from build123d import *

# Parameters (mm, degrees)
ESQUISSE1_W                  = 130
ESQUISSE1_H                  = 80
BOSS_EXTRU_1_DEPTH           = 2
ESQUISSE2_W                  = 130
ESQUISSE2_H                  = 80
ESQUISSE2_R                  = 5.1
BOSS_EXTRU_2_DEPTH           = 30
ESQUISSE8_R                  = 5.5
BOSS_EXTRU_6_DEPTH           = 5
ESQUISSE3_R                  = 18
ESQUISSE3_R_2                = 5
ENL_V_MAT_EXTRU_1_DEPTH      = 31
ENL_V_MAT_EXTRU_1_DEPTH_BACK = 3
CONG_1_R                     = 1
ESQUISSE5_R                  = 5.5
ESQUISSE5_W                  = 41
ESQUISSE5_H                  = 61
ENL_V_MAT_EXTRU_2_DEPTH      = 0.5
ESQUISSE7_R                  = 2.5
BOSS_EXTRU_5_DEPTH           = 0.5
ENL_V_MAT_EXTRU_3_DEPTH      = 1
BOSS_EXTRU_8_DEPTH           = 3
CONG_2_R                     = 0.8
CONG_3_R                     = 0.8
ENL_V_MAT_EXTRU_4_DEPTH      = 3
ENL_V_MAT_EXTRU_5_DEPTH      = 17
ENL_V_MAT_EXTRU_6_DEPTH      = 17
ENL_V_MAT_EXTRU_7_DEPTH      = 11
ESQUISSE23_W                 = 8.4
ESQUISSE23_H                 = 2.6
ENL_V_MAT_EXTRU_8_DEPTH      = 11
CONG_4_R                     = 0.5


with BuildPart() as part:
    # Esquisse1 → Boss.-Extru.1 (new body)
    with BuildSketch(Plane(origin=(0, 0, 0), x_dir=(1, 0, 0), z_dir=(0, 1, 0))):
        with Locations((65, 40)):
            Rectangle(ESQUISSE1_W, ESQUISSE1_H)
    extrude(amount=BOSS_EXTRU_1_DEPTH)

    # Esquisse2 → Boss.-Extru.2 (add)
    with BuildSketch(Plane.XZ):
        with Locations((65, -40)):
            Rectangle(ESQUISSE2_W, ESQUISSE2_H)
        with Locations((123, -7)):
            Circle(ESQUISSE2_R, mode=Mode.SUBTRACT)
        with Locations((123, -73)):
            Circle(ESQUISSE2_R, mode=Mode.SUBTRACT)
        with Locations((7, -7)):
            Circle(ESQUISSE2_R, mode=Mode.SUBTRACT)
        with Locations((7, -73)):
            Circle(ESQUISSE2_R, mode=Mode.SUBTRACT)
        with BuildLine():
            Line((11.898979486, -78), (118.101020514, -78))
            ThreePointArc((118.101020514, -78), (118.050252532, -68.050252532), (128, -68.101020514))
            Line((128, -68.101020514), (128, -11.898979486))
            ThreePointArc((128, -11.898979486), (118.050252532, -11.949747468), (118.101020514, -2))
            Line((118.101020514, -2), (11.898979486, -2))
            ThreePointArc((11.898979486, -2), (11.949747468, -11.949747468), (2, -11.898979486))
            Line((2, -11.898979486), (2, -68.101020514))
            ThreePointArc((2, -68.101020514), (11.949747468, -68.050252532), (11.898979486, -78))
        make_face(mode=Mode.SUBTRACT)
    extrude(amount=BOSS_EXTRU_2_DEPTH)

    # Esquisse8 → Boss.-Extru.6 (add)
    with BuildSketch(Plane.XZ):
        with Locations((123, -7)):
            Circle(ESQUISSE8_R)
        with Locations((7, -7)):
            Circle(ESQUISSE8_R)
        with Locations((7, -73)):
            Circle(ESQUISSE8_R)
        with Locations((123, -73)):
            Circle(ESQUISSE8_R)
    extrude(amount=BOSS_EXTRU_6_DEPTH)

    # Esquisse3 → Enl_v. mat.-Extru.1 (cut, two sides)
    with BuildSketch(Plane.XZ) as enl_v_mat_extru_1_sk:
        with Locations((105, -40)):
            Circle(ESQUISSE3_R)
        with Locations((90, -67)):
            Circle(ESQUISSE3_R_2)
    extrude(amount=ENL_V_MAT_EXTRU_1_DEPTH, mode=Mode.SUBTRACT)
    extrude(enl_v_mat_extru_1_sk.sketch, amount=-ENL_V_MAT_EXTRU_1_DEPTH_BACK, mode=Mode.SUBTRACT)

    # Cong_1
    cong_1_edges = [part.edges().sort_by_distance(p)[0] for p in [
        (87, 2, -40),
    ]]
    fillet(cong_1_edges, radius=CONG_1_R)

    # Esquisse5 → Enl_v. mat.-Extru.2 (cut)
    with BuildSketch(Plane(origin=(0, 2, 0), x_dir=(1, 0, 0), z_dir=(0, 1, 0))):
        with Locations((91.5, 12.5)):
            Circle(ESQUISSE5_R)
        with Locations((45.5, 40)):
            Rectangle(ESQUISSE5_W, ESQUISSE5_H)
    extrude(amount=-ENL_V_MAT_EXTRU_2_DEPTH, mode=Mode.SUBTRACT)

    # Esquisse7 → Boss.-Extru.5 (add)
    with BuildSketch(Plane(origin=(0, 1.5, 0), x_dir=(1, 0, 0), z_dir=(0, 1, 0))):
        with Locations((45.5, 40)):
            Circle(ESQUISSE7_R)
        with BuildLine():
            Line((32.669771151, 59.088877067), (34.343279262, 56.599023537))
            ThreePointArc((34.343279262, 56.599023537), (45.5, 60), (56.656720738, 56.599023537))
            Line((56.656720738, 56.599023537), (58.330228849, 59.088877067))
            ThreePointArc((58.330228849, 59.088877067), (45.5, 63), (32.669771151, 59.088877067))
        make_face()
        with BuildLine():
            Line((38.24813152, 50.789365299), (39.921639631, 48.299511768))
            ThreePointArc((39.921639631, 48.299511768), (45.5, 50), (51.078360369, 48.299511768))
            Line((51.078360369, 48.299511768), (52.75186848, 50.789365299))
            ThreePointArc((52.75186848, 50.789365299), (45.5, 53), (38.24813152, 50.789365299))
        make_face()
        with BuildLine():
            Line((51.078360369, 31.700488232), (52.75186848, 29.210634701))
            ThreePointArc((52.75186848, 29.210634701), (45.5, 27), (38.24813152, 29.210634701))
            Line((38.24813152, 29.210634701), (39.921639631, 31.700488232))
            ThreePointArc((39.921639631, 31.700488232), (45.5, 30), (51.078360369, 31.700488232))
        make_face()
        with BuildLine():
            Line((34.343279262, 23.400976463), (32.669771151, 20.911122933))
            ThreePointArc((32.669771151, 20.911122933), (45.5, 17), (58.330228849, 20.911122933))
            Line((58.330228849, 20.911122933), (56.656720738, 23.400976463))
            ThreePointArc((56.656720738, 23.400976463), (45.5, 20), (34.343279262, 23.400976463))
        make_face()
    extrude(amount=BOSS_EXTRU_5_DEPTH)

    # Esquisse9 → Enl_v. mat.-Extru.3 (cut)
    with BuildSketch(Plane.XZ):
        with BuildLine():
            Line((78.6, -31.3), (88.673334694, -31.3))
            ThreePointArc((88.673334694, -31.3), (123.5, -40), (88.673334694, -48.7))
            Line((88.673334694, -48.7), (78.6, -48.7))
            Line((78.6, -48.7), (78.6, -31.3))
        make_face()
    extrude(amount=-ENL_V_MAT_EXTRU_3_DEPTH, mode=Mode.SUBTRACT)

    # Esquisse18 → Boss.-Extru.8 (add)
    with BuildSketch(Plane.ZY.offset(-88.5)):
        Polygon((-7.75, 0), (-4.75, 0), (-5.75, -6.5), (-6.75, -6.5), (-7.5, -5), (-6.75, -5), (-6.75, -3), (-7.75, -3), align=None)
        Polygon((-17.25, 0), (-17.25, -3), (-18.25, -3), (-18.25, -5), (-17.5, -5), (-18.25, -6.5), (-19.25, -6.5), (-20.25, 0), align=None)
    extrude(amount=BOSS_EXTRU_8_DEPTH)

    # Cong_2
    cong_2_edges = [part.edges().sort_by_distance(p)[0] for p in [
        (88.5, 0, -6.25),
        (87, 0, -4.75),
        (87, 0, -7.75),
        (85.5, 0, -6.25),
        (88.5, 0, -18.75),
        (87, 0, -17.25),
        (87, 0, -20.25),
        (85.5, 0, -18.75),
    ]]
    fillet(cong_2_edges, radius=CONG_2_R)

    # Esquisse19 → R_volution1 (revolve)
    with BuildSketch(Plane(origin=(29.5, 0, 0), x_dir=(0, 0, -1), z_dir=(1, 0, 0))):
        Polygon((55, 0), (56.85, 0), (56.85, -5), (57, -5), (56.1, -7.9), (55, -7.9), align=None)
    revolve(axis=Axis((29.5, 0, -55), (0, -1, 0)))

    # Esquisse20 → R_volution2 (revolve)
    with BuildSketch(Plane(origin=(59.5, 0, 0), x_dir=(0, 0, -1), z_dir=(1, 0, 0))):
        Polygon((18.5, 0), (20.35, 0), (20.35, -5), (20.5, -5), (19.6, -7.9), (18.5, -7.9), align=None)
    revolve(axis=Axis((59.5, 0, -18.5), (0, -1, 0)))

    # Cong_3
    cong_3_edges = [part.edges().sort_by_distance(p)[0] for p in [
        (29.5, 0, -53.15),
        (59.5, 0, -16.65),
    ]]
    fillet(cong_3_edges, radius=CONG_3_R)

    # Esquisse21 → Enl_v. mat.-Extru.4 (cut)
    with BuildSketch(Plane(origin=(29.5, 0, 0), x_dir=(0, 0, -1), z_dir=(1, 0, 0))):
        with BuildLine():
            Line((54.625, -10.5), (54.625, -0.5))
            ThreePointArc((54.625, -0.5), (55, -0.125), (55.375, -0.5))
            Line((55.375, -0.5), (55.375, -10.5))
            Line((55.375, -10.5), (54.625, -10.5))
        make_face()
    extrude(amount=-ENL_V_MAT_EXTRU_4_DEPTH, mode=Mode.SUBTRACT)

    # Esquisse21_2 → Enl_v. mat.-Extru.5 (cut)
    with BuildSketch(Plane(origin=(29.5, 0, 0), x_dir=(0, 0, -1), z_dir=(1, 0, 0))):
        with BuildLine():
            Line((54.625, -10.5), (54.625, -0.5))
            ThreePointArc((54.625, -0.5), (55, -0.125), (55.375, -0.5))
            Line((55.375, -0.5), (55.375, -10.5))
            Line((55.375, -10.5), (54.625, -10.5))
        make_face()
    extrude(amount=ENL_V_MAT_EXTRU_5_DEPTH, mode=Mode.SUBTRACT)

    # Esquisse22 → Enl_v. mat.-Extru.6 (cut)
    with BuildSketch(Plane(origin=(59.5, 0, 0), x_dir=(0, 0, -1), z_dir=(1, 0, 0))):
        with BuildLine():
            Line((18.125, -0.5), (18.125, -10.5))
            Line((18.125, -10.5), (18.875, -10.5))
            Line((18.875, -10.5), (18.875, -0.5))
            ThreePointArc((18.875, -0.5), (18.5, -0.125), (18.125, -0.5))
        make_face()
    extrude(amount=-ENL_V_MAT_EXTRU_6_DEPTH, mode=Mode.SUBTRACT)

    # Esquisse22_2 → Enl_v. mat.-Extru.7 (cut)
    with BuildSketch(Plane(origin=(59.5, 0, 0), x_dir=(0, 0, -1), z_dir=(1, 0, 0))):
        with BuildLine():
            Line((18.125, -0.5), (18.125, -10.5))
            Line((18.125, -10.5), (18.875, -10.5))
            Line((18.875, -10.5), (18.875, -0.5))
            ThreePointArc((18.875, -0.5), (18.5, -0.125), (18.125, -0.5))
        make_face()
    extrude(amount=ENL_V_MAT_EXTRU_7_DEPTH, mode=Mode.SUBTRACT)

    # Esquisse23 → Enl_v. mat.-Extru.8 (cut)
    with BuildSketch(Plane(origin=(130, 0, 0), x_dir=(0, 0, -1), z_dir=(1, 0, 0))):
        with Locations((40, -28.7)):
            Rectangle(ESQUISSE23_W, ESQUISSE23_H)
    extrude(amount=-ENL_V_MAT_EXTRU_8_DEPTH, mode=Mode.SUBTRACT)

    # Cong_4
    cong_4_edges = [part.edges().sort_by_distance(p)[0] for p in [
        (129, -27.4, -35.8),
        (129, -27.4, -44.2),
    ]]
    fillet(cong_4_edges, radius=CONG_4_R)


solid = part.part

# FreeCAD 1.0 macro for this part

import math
import FreeCAD as App
import Part
import Sketcher
from FreeCAD import Vector


def edges_at(feature, points):
    """Names of the edges that pass closest to the given points."""
    edges = feature.Shape.Edges
    near = lambda p: min(range(len(edges)), key=lambda i: edges[i].distToShape(Part.Vertex(*p))[0])
    return sorted({f"Edge{near(p) + 1}" for p in points})


def add_polygon(sketch, points):
    """Adds a closed chain of lines whose ends are joined by coincident constraints."""
    first, n = sketch.GeometryCount, len(points)
    for a, b in zip(points, points[1:] + points[:1]):
        sketch.addGeometry(Part.LineSegment(App.Vector(*a, 0), App.Vector(*b, 0)), False)
    for i in range(n):
        sketch.addConstraint(Sketcher.Constraint("Coincident", first + i, 2, first + (i + 1) % n, 1))

doc = App.newDocument("Part")
body = doc.addObject("PartDesign::Body", "Body")

# Sketch on XZ plane
sketch1 = body.newObject("Sketcher::SketchObject", "Sketch")
sketch1.AttachmentSupport = (doc.getObject("XZ_Plane"), [""])
sketch1.MapMode = "FlatFace"
add_polygon(sketch1, [(0, -80), (0, 0), (130, 0), (130, -80)])  # lines 0-3
sketch1.addConstraint([
    Sketcher.Constraint("Vertical", 0),
    Sketcher.Constraint("Horizontal", 1),
    Sketcher.Constraint("Vertical", 2),
    Sketcher.Constraint("Horizontal", 3),
    Sketcher.Constraint("Coincident", 0, 2, -1, 1),
    Sketcher.Constraint("DistanceX", 1, 1, 1, 2, 130.0),
    Sketcher.Constraint("DistanceY", 0, 1, 0, 2, 80.0),
])
pad1 = body.newObject("PartDesign::Pad", "Pad")
pad1.Profile = sketch1
pad1.Length = 2
pad1.Reversed = True

# Sketch on XZ plane
sketch2 = body.newObject("Sketcher::SketchObject", "Sketch001")
sketch2.AttachmentSupport = (doc.getObject("XZ_Plane"), [""])
sketch2.MapMode = "FlatFace"
add_polygon(sketch2, [(0, 0), (0, -80), (130, -80), (130, 0)])  # lines 0-3
sketch2.addGeometry(Part.Circle(Vector(7, -73, 0), Vector(0, 0, 1), 5.1), False)  # 4
sketch2.addGeometry(Part.Circle(Vector(123, -73, 0), Vector(0, 0, 1), 5.1), False)  # 5
sketch2.addGeometry(Part.Circle(Vector(7, -7, 0), Vector(0, 0, 1), 5.1), False)  # 6
sketch2.addGeometry(Part.LineSegment(Vector(118.101021, -78, 0), Vector(11.898979, -78, 0)), False)  # 7
sketch2.addGeometry(Part.ArcOfCircle(Part.Circle(Vector(7, -73, 0), Vector(0, 0, 1), 7), math.radians(-45.584691), math.radians(135.584691)), False)  # 8
sketch2.addGeometry(Part.LineSegment(Vector(2, -68.101021, 0), Vector(2, -11.898979, 0)), False)  # 9
sketch2.addGeometry(Part.ArcOfCircle(Part.Circle(Vector(7, -7, 0), Vector(0, 0, 1), 7), math.radians(-135.584691), math.radians(45.584691)), False)  # 10
sketch2.addGeometry(Part.LineSegment(Vector(11.898979, -2, 0), Vector(118.101021, -2, 0)), False)  # 11
sketch2.addGeometry(Part.ArcOfCircle(Part.Circle(Vector(123, -7, 0), Vector(0, 0, 1), 7), math.radians(134.415309), math.radians(315.584691)), False)  # 12
sketch2.addGeometry(Part.LineSegment(Vector(128, -11.898979, 0), Vector(128, -68.101021, 0)), False)  # 13
sketch2.addGeometry(Part.ArcOfCircle(Part.Circle(Vector(123, -73, 0), Vector(0, 0, 1), 7), math.radians(44.415309), math.radians(225.584691)), False)  # 14
sketch2.addGeometry(Part.Circle(Vector(123, -7, 0), Vector(0, 0, 1), 5.1), False)  # 15
sketch2.addConstraint([
    Sketcher.Constraint("Coincident", 7, 2, 8, 1),
    Sketcher.Constraint("Coincident", 8, 2, 9, 1),
    Sketcher.Constraint("Coincident", 9, 2, 10, 1),
    Sketcher.Constraint("Coincident", 10, 2, 11, 1),
    Sketcher.Constraint("Coincident", 11, 2, 12, 1),
    Sketcher.Constraint("Coincident", 12, 2, 13, 1),
    Sketcher.Constraint("Coincident", 13, 2, 14, 1),
    Sketcher.Constraint("Coincident", 14, 2, 7, 1),
    Sketcher.Constraint("Vertical", 0),
    Sketcher.Constraint("Horizontal", 1),
    Sketcher.Constraint("Vertical", 2),
    Sketcher.Constraint("Horizontal", 3),
    Sketcher.Constraint("Horizontal", 7),
    Sketcher.Constraint("Vertical", 9),
    Sketcher.Constraint("Horizontal", 11),
    Sketcher.Constraint("Vertical", 13),
    Sketcher.Constraint("Coincident", 3, 2, -1, 1),
    Sketcher.Constraint("Coincident", 8, 3, 4, 3),
    Sketcher.Constraint("Coincident", 10, 3, 6, 3),
    Sketcher.Constraint("Coincident", 14, 3, 5, 3),
    Sketcher.Constraint("Coincident", 15, 3, 12, 3),
    Sketcher.Constraint("Equal", 4, 5),
    Sketcher.Constraint("Equal", 5, 6),
    Sketcher.Constraint("Equal", 8, 10),
    Sketcher.Constraint("Equal", 10, 12),
    Sketcher.Constraint("Equal", 12, 14),
    Sketcher.Constraint("Equal", 6, 15),
    Sketcher.Constraint("Horizontal", 4, 3, 5, 3),
    Sketcher.Constraint("Horizontal", 10, 3, 12, 3),
    Sketcher.Constraint("Horizontal", 9, 2, 12, 2),
    Sketcher.Constraint("Horizontal", 8, 2, 13, 2),
    Sketcher.Constraint("Vertical", 4, 3, 6, 3),
    Sketcher.Constraint("Vertical", 7, 2, 10, 2),
    Sketcher.Constraint("Radius", 8, 7.0),
    Sketcher.Constraint("Diameter", 4, 10.2),
    Sketcher.Constraint("DistanceX", 1, 1, 1, 2, 130.0),
    Sketcher.Constraint("DistanceY", 0, 2, 0, 1, 80.0),
    Sketcher.Constraint("DistanceX", -1, 1, 4, 3, 7.0),
    Sketcher.Constraint("DistanceY", 4, 3, -1, 1, 73.0),
    Sketcher.Constraint("DistanceX", -1, 1, 5, 3, 123.0),
    Sketcher.Constraint("DistanceY", 6, 3, -1, 1, 7.0),
    Sketcher.Constraint("DistanceY", 7, 2, -1, 1, 78.0),
    Sketcher.Constraint("DistanceX", -1, 1, 8, 2, 2.0),
])
pad2 = body.newObject("PartDesign::Pad", "Pad001")
pad2.Profile = sketch2
pad2.Length = 30

# Sketch on XZ plane
sketch3 = body.newObject("Sketcher::SketchObject", "Sketch002")
sketch3.AttachmentSupport = (doc.getObject("XZ_Plane"), [""])
sketch3.MapMode = "FlatFace"
sketch3.addGeometry([
    Part.Circle(Vector(123, -7, 0), Vector(0, 0, 1), 5.5),
    Part.Circle(Vector(7, -7, 0), Vector(0, 0, 1), 5.5),
    Part.Circle(Vector(7, -73, 0), Vector(0, 0, 1), 5.5),
    Part.Circle(Vector(123, -73, 0), Vector(0, 0, 1), 5.5),
], False)
sketch3.addConstraint([
    Sketcher.Constraint("Equal", 0, 1),
    Sketcher.Constraint("Equal", 1, 2),
    Sketcher.Constraint("Equal", 2, 3),
    Sketcher.Constraint("Horizontal", 0, 3, 1, 3),
    Sketcher.Constraint("Horizontal", 2, 3, 3, 3),
    Sketcher.Constraint("Vertical", 1, 3, 2, 3),
    Sketcher.Constraint("Vertical", 0, 3, 3, 3),
    Sketcher.Constraint("Diameter", 0, 11.0),
    Sketcher.Constraint("DistanceX", -1, 1, 0, 3, 123.0),
    Sketcher.Constraint("DistanceY", 0, 3, -1, 1, 7.0),
    Sketcher.Constraint("DistanceX", -1, 1, 1, 3, 7.0),
    Sketcher.Constraint("DistanceY", 2, 3, -1, 1, 73.0),
])
pad3 = body.newObject("PartDesign::Pad", "Pad002")
pad3.Profile = sketch3
pad3.Length = 5

# Sketch on XZ plane
sketch4 = body.newObject("Sketcher::SketchObject", "Sketch003")
sketch4.AttachmentSupport = (doc.getObject("XZ_Plane"), [""])
sketch4.MapMode = "FlatFace"
sketch4.addGeometry([
    Part.Circle(Vector(105, -40, 0), Vector(0, 0, 1), 18),
    Part.Circle(Vector(90, -67, 0), Vector(0, 0, 1), 5),
], False)
sketch4.addConstraint([
    Sketcher.Constraint("Diameter", 0, 36.0),
    Sketcher.Constraint("Diameter", 1, 10.0),
    Sketcher.Constraint("DistanceX", -1, 1, 0, 3, 105.0),
    Sketcher.Constraint("DistanceY", 0, 3, -1, 1, 40.0),
    Sketcher.Constraint("DistanceX", -1, 1, 1, 3, 90.0),
    Sketcher.Constraint("DistanceY", 1, 3, -1, 1, 67.0),
])
pocket1 = body.newObject("PartDesign::Pocket", "Pocket")
pocket1.Profile = sketch4
pocket1.Type = "ThroughAll"
pocket1.Midplane = True
doc.recompute()

fillet = body.newObject("PartDesign::Fillet", "Fillet")
fillet.Base = (pocket1, edges_at(pocket1, [(87, 2, -40)]))
fillet.Radius = 1

# Sketch on XZ plane
sketch5 = body.newObject("Sketcher::SketchObject", "Sketch004")
sketch5.AttachmentSupport = (doc.getObject("XZ_Plane"), [""])
sketch5.MapMode = "FlatFace"
sketch5.AttachmentOffset = App.Placement(Vector(0, 0, -2), App.Rotation())
sketch5.addGeometry(Part.Circle(Vector(91.5, -12.5, 0), Vector(0, 0, 1), 5.5), False)  # 0
add_polygon(sketch5, [(25, -70.5), (25, -9.5), (66, -9.5), (66, -70.5)])  # lines 1-4
sketch5.addConstraint([
    Sketcher.Constraint("Vertical", 1),
    Sketcher.Constraint("Horizontal", 2),
    Sketcher.Constraint("Vertical", 3),
    Sketcher.Constraint("Horizontal", 4),
    Sketcher.Constraint("Diameter", 0, 11.0),
    Sketcher.Constraint("DistanceX", 2, 1, 2, 2, 41.0),
    Sketcher.Constraint("DistanceY", 1, 1, 1, 2, 61.0),
    Sketcher.Constraint("DistanceX", -1, 1, 1, 2, 25.0),
    Sketcher.Constraint("DistanceY", 0, 3, 1, 2, 3.0),
    Sketcher.Constraint("DistanceX", -1, 1, 0, 3, 91.5),
    Sketcher.Constraint("DistanceY", 0, 3, -1, 1, 12.5),
])
pocket2 = body.newObject("PartDesign::Pocket", "Pocket001")
pocket2.Profile = sketch5
pocket2.Length = 0.5
pocket2.Reversed = True

# Sketch on XZ plane
sketch6 = body.newObject("Sketcher::SketchObject", "Sketch005")
sketch6.AttachmentSupport = (doc.getObject("XZ_Plane"), [""])
sketch6.MapMode = "FlatFace"
sketch6.AttachmentOffset = App.Placement(Vector(0, 0, -1.5), App.Rotation())
sketch6.addGeometry([
    Part.Circle(Vector(45.5, -40, 0), Vector(0, 0, 1), 2.5),  # 0
    Part.LineSegment(Vector(32.669771, -59.088877, 0), Vector(34.343279, -56.599024, 0)),  # 1
    Part.ArcOfCircle(Part.Circle(Vector(45.5, -40, 0), Vector(0, 0, 1), 20), math.radians(-123.906277), math.radians(-56.093723)),  # 2
    Part.LineSegment(Vector(56.656721, -56.599024, 0), Vector(58.330229, -59.088877, 0)),  # 3
    Part.ArcOfCircle(Part.Circle(Vector(45.5, -40, 0), Vector(0, 0, 1), 23), math.radians(-123.906277), math.radians(-56.093723)),  # 4
    Part.LineSegment(Vector(38.248132, -50.789365, 0), Vector(39.92164, -48.299512, 0)),  # 5
    Part.ArcOfCircle(Part.Circle(Vector(45.5, -40, 0), Vector(0, 0, 1), 10), math.radians(-123.906277), math.radians(-56.093723)),  # 6
    Part.LineSegment(Vector(51.07836, -48.299512, 0), Vector(52.751868, -50.789365, 0)),  # 7
    Part.ArcOfCircle(Part.Circle(Vector(45.5, -40, 0), Vector(0, 0, 1), 13), math.radians(-123.906277), math.radians(-56.093723)),  # 8
    Part.LineSegment(Vector(52.751868, -29.210635, 0), Vector(51.07836, -31.700488, 0)),  # 9
    Part.ArcOfCircle(Part.Circle(Vector(45.5, -40, 0), Vector(0, 0, 1), 10), math.radians(56.093723), math.radians(123.906277)),  # 10
    Part.LineSegment(Vector(39.92164, -31.700488, 0), Vector(38.248132, -29.210635, 0)),  # 11
    Part.ArcOfCircle(Part.Circle(Vector(45.5, -40, 0), Vector(0, 0, 1), 13), math.radians(56.093723), math.radians(123.906277)),  # 12
    Part.LineSegment(Vector(34.343279, -23.400976, 0), Vector(32.669771, -20.911123, 0)),  # 13
    Part.ArcOfCircle(Part.Circle(Vector(45.5, -40, 0), Vector(0, 0, 1), 23), math.radians(56.093723), math.radians(123.906277)),  # 14
    Part.LineSegment(Vector(58.330229, -20.911123, 0), Vector(56.656721, -23.400976, 0)),  # 15
    Part.ArcOfCircle(Part.Circle(Vector(45.5, -40, 0), Vector(0, 0, 1), 20), math.radians(56.093723), math.radians(123.906277)),  # 16
], False)
sketch6.addConstraint([
    Sketcher.Constraint("Coincident", 1, 2, 2, 1),
    Sketcher.Constraint("Coincident", 2, 2, 3, 1),
    Sketcher.Constraint("Coincident", 3, 2, 4, 2),
    Sketcher.Constraint("Coincident", 4, 1, 1, 1),
    Sketcher.Constraint("Coincident", 5, 2, 6, 1),
    Sketcher.Constraint("Coincident", 6, 2, 7, 1),
    Sketcher.Constraint("Coincident", 7, 2, 8, 2),
    Sketcher.Constraint("Coincident", 8, 1, 5, 1),
    Sketcher.Constraint("Coincident", 9, 2, 10, 1),
    Sketcher.Constraint("Coincident", 10, 2, 11, 1),
    Sketcher.Constraint("Coincident", 11, 2, 12, 2),
    Sketcher.Constraint("Coincident", 12, 1, 9, 1),
    Sketcher.Constraint("Coincident", 13, 2, 14, 2),
    Sketcher.Constraint("Coincident", 14, 1, 15, 1),
    Sketcher.Constraint("Coincident", 15, 2, 16, 1),
    Sketcher.Constraint("Coincident", 16, 2, 13, 1),
    Sketcher.Constraint("Coincident", 2, 3, 0, 3),
    Sketcher.Constraint("Coincident", 4, 3, 0, 3),
    Sketcher.Constraint("Coincident", 6, 3, 0, 3),
    Sketcher.Constraint("Coincident", 8, 3, 0, 3),
    Sketcher.Constraint("Coincident", 10, 3, 0, 3),
    Sketcher.Constraint("Coincident", 12, 3, 0, 3),
    Sketcher.Constraint("Coincident", 14, 3, 0, 3),
    Sketcher.Constraint("Coincident", 16, 3, 0, 3),
    Sketcher.Constraint("Equal", 6, 10),
    Sketcher.Constraint("Equal", 8, 12),
    Sketcher.Constraint("Equal", 4, 14),
    Sketcher.Constraint("Equal", 2, 16),
    Sketcher.Constraint("Parallel", 1, 5),
    Sketcher.Constraint("Parallel", 3, 7),
    Sketcher.Constraint("Parallel", 5, 9),
    Sketcher.Constraint("Parallel", 7, 11),
    Sketcher.Constraint("Parallel", 11, 13),
    Sketcher.Constraint("Parallel", 9, 15),
    Sketcher.Constraint("Horizontal", 1, 2, 2, 2),
    Sketcher.Constraint("Horizontal", 3, 2, 4, 1),
    Sketcher.Constraint("Horizontal", 5, 2, 6, 2),
    Sketcher.Constraint("Horizontal", 9, 2, 10, 2),
    Sketcher.Constraint("Horizontal", 13, 2, 14, 1),
    Sketcher.Constraint("Vertical", 6, 2, 9, 2),
    Sketcher.Constraint("Vertical", 4, 1, 13, 2),
    Sketcher.Constraint("Equal", 3, 5),
    Sketcher.Constraint("Diameter", 0, 5.0),
    Sketcher.Constraint("Radius", 2, 20.0),
    Sketcher.Constraint("Radius", 4, 23.0),
    Sketcher.Constraint("Radius", 6, 10.0),
    Sketcher.Constraint("DistanceY", 0, 3, -1, 1, 40.0),
    Sketcher.Constraint("DistanceX", -1, 1, 0, 3, 45.5),
    Sketcher.Constraint("DistanceX", -1, 1, 1, 2, 34.343279),
    Sketcher.Constraint("DistanceX", -1, 1, 3, 2, 58.330229),
    Sketcher.Constraint("DistanceX", -1, 1, 5, 2, 39.92164),
])
pad4 = body.newObject("PartDesign::Pad", "Pad003")
pad4.Profile = sketch6
pad4.Length = 0.5
pad4.Reversed = True

# Sketch on XZ plane
sketch7 = body.newObject("Sketcher::SketchObject", "Sketch006")
sketch7.AttachmentSupport = (doc.getObject("XZ_Plane"), [""])
sketch7.MapMode = "FlatFace"
sketch7.addGeometry([
    Part.LineSegment(Vector(88.673335, -31.3, 0), Vector(78.6, -31.3, 0)),
    Part.LineSegment(Vector(78.6, -31.3, 0), Vector(78.6, -48.7, 0)),
    Part.LineSegment(Vector(78.6, -48.7, 0), Vector(88.673335, -48.7, 0)),
    Part.ArcOfCircle(Part.Circle(Vector(105, -40, 0), Vector(0, 0, 1), 18.5), math.radians(-151.948158), math.radians(151.948158)),
], False)
sketch7.addConstraint([
    Sketcher.Constraint("Coincident", 0, 2, 1, 1),
    Sketcher.Constraint("Coincident", 1, 2, 2, 1),
    Sketcher.Constraint("Coincident", 2, 2, 3, 1),
    Sketcher.Constraint("Coincident", 3, 2, 0, 1),
    Sketcher.Constraint("Horizontal", 0),
    Sketcher.Constraint("Vertical", 1),
    Sketcher.Constraint("Horizontal", 2),
    Sketcher.Constraint("Vertical", 2, 2, 3, 2),
    Sketcher.Constraint("Radius", 3, 18.5),
    Sketcher.Constraint("DistanceY", 1, 2, 1, 1, 17.4),
    Sketcher.Constraint("DistanceX", -1, 1, 3, 3, 105.0),
    Sketcher.Constraint("DistanceY", 3, 3, -1, 1, 40.0),
    Sketcher.Constraint("DistanceX", -1, 1, 0, 2, 78.6),
])
pocket3 = body.newObject("PartDesign::Pocket", "Pocket002")
pocket3.Profile = sketch7
pocket3.Length = 1

# Sketch on YZ plane
sketch8 = body.newObject("Sketcher::SketchObject", "Sketch007")
sketch8.AttachmentSupport = (doc.getObject("YZ_Plane"), [""])
sketch8.MapMode = "FlatFace"
sketch8.AttachmentOffset = App.Placement(Vector(0, 0, 88.5), App.Rotation())
add_polygon(sketch8, [(0, -4.75), (0, -7.75), (-3, -7.75), (-3, -6.75), (-5, -6.75), (-5, -7.5), (-6.5, -6.75), (-6.5, -5.75)])  # lines 0-7
add_polygon(sketch8, [(-3, -17.25), (0, -17.25), (0, -20.25), (-6.5, -19.25), (-6.5, -18.25), (-5, -17.5), (-5, -18.25), (-3, -18.25)])  # lines 8-15
sketch8.addConstraint([
    Sketcher.Constraint("Vertical", 0),
    Sketcher.Constraint("Horizontal", 1),
    Sketcher.Constraint("Vertical", 2),
    Sketcher.Constraint("Horizontal", 3),
    Sketcher.Constraint("Vertical", 4),
    Sketcher.Constraint("Vertical", 6),
    Sketcher.Constraint("Horizontal", 8),
    Sketcher.Constraint("Vertical", 9),
    Sketcher.Constraint("Vertical", 11),
    Sketcher.Constraint("Vertical", 13),
    Sketcher.Constraint("Horizontal", 14),
    Sketcher.Constraint("Vertical", 15),
    Sketcher.Constraint("PointOnObject", 0, 2, -2),
    Sketcher.Constraint("PointOnObject", 8, 2, -2),
    Sketcher.Constraint("Horizontal", 3, 2, 5, 2),
    Sketcher.Constraint("Horizontal", 11, 2, 13, 2),
    Sketcher.Constraint("Vertical", 6, 2, 10, 2),
    Sketcher.Constraint("Vertical", 4, 2, 12, 2),
    Sketcher.Constraint("Vertical", 2, 2, 14, 2),
    Sketcher.Constraint("Equal", 8, 0),
    Sketcher.Constraint("Equal", 2, 6),
    Sketcher.Constraint("Equal", 0, 9),
    Sketcher.Constraint("Equal", 6, 11),
    Sketcher.Constraint("Equal", 4, 13),
    Sketcher.Constraint("Equal", 11, 15),
    Sketcher.Constraint("DistanceX", 1, 2, 1, 1, 3.0),
    Sketcher.Constraint("DistanceX", 3, 2, 3, 1, 2.0),
    Sketcher.Constraint("DistanceY", 2, 1, 2, 2, 1.0),
    Sketcher.Constraint("DistanceY", 4, 2, 4, 1, 0.75),
    Sketcher.Constraint("DistanceY", 4, 2, -1, 1, 7.5),
    Sketcher.Constraint("DistanceX", 5, 2, -1, 1, 6.5),
    Sketcher.Constraint("DistanceY", 12, 2, -1, 1, 17.5),
])
pad5 = body.newObject("PartDesign::Pad", "Pad004")
pad5.Profile = sketch8
pad5.Length = 3
pad5.Reversed = True
doc.recompute()

fillet2 = body.newObject("PartDesign::Fillet", "Fillet001")
fillet2.Base = (pad5, edges_at(pad5, [
    (88.5, 0, -6.25),
    (87, 0, -4.75),
    (87, 0, -7.75),
    (85.5, 0, -6.25),
    (88.5, 0, -18.75),
    (87, 0, -17.25),
    (87, 0, -20.25),
    (85.5, 0, -18.75),
]))
fillet2.Radius = 0.8

# Sketch on YZ plane
sketch9 = body.newObject("Sketcher::SketchObject", "Sketch008")
sketch9.AttachmentSupport = (doc.getObject("YZ_Plane"), [""])
sketch9.MapMode = "FlatFace"
sketch9.AttachmentOffset = App.Placement(Vector(0, 0, 29.5), App.Rotation())
add_polygon(sketch9, [(0, -56.85), (0, -55), (-7.9, -55), (-7.9, -56.1), (-5, -57), (-5, -56.85)])  # lines 0-5
sketch9.addGeometry(Part.LineSegment(Vector(0, -55, 0), Vector(-7.9, -55, 0)), True)  # axis
sketch9.addConstraint([
    Sketcher.Constraint("Vertical", 0),
    Sketcher.Constraint("Horizontal", 1),
    Sketcher.Constraint("Vertical", 2),
    Sketcher.Constraint("Vertical", 4),
    Sketcher.Constraint("Horizontal", 5),
    Sketcher.Constraint("Horizontal", 6),
    Sketcher.Constraint("Coincident", 6, 1, 0, 2),
    Sketcher.Constraint("PointOnObject", 0, 2, -2),
    Sketcher.Constraint("Vertical", 2, 2, 6, 2),
    Sketcher.Constraint("DistanceX", 5, 1, 5, 2, 5.0),
    Sketcher.Constraint("DistanceX", 1, 2, 1, 1, 7.9),
    Sketcher.Constraint("DistanceY", 2, 2, 2, 1, 1.1),
    Sketcher.Constraint("DistanceY", 0, 2, -1, 1, 55.0),
    Sketcher.Constraint("DistanceY", 3, 2, -1, 1, 57.0),
    Sketcher.Constraint("DistanceY", 0, 1, 0, 2, 1.85),
])
revolution = body.newObject("PartDesign::Revolution", "Revolution")
revolution.Profile = sketch9
revolution.ReferenceAxis = (sketch9, ["Axis0"])
revolution.Angle = 360

# Sketch on YZ plane
sketch10 = body.newObject("Sketcher::SketchObject", "Sketch009")
sketch10.AttachmentSupport = (doc.getObject("YZ_Plane"), [""])
sketch10.MapMode = "FlatFace"
sketch10.AttachmentOffset = App.Placement(Vector(0, 0, 59.5), App.Rotation())
add_polygon(sketch10, [(0, -20.35), (0, -18.5), (-7.9, -18.5), (-7.9, -19.6), (-5, -20.5), (-5, -20.35)])  # lines 0-5
sketch10.addGeometry(Part.LineSegment(Vector(0, -18.5, 0), Vector(-7.9, -18.5, 0)), True)  # axis
sketch10.addConstraint([
    Sketcher.Constraint("Vertical", 0),
    Sketcher.Constraint("Horizontal", 1),
    Sketcher.Constraint("Vertical", 2),
    Sketcher.Constraint("Vertical", 4),
    Sketcher.Constraint("Horizontal", 5),
    Sketcher.Constraint("Horizontal", 6),
    Sketcher.Constraint("Coincident", 6, 1, 0, 2),
    Sketcher.Constraint("PointOnObject", 0, 2, -2),
    Sketcher.Constraint("Vertical", 2, 2, 6, 2),
    Sketcher.Constraint("DistanceX", 5, 1, 5, 2, 5.0),
    Sketcher.Constraint("DistanceX", 1, 2, 1, 1, 7.9),
    Sketcher.Constraint("DistanceY", 2, 2, 2, 1, 1.1),
    Sketcher.Constraint("DistanceY", 3, 2, 1, 2, 2.0),
    Sketcher.Constraint("DistanceY", 0, 1, 0, 2, 1.85),
    Sketcher.Constraint("DistanceY", 0, 2, -1, 1, 18.5),
])
revolution2 = body.newObject("PartDesign::Revolution", "Revolution001")
revolution2.Profile = sketch10
revolution2.ReferenceAxis = (sketch10, ["Axis0"])
revolution2.Angle = 360
doc.recompute()

fillet3 = body.newObject("PartDesign::Fillet", "Fillet002")
fillet3.Base = (revolution2, edges_at(revolution2, [(29.5, 0, -53.15), (59.5, 0, -16.65)]))
fillet3.Radius = 0.8

# Sketch on YZ plane
sketch11 = body.newObject("Sketcher::SketchObject", "Sketch010")
sketch11.AttachmentSupport = (doc.getObject("YZ_Plane"), [""])
sketch11.MapMode = "FlatFace"
sketch11.AttachmentOffset = App.Placement(Vector(0, 0, 29.5), App.Rotation())
sketch11.addGeometry([
    Part.LineSegment(Vector(-0.5, -54.625, 0), Vector(-10.5, -54.625, 0)),
    Part.LineSegment(Vector(-10.5, -54.625, 0), Vector(-10.5, -55.375, 0)),
    Part.LineSegment(Vector(-10.5, -55.375, 0), Vector(-0.5, -55.375, 0)),
    Part.ArcOfCircle(Part.Circle(Vector(-0.5, -55, 0), Vector(0, 0, 1), 0.375), math.radians(-90), math.radians(90)),
], False)
sketch11.addConstraint([
    Sketcher.Constraint("Coincident", 0, 2, 1, 1),
    Sketcher.Constraint("Coincident", 1, 2, 2, 1),
    Sketcher.Constraint("Tangent", 2, 2, 3, 1),
    Sketcher.Constraint("Tangent", 3, 2, 0, 1),
    Sketcher.Constraint("Horizontal", 0),
    Sketcher.Constraint("Vertical", 1),
    Sketcher.Constraint("Horizontal", 2),
    Sketcher.Constraint("DistanceX", 0, 2, 0, 1, 10.0),
    Sketcher.Constraint("DistanceY", 3, 3, -1, 1, 55.0),
    Sketcher.Constraint("Radius", 3, 0.375),
    Sketcher.Constraint("DistanceX", 3, 3, -1, 1, 0.5),
])
pocket4 = body.newObject("PartDesign::Pocket", "Pocket003")
pocket4.Profile = sketch11
pocket4.Length = 3

# Sketch on YZ plane
sketch12 = body.newObject("Sketcher::SketchObject", "Sketch011")
sketch12.AttachmentSupport = (doc.getObject("YZ_Plane"), [""])
sketch12.MapMode = "FlatFace"
sketch12.AttachmentOffset = App.Placement(Vector(0, 0, 29.5), App.Rotation())
sketch12.addGeometry([
    Part.LineSegment(Vector(-0.5, -54.625, 0), Vector(-10.5, -54.625, 0)),
    Part.LineSegment(Vector(-10.5, -54.625, 0), Vector(-10.5, -55.375, 0)),
    Part.LineSegment(Vector(-10.5, -55.375, 0), Vector(-0.5, -55.375, 0)),
    Part.ArcOfCircle(Part.Circle(Vector(-0.5, -55, 0), Vector(0, 0, 1), 0.375), math.radians(-90), math.radians(90)),
], False)
sketch12.addConstraint([
    Sketcher.Constraint("Coincident", 0, 2, 1, 1),
    Sketcher.Constraint("Coincident", 1, 2, 2, 1),
    Sketcher.Constraint("Tangent", 2, 2, 3, 1),
    Sketcher.Constraint("Tangent", 3, 2, 0, 1),
    Sketcher.Constraint("Horizontal", 0),
    Sketcher.Constraint("Vertical", 1),
    Sketcher.Constraint("Horizontal", 2),
    Sketcher.Constraint("DistanceX", 0, 2, 0, 1, 10.0),
    Sketcher.Constraint("DistanceY", 3, 3, -1, 1, 55.0),
    Sketcher.Constraint("Radius", 3, 0.375),
    Sketcher.Constraint("DistanceX", 3, 3, -1, 1, 0.5),
])
pocket5 = body.newObject("PartDesign::Pocket", "Pocket004")
pocket5.Profile = sketch12
pocket5.Length = 17
pocket5.Reversed = True

# Sketch on YZ plane
sketch13 = body.newObject("Sketcher::SketchObject", "Sketch012")
sketch13.AttachmentSupport = (doc.getObject("YZ_Plane"), [""])
sketch13.MapMode = "FlatFace"
sketch13.AttachmentOffset = App.Placement(Vector(0, 0, 59.5), App.Rotation())
sketch13.addGeometry([
    Part.LineSegment(Vector(-0.5, -18.125, 0), Vector(-10.5, -18.125, 0)),
    Part.LineSegment(Vector(-10.5, -18.125, 0), Vector(-10.5, -18.875, 0)),
    Part.LineSegment(Vector(-10.5, -18.875, 0), Vector(-0.5, -18.875, 0)),
    Part.ArcOfCircle(Part.Circle(Vector(-0.5, -18.5, 0), Vector(0, 0, 1), 0.375), math.radians(-90), math.radians(90)),
], False)
sketch13.addConstraint([
    Sketcher.Constraint("Coincident", 0, 2, 1, 1),
    Sketcher.Constraint("Coincident", 1, 2, 2, 1),
    Sketcher.Constraint("Tangent", 2, 2, 3, 1),
    Sketcher.Constraint("Tangent", 3, 2, 0, 1),
    Sketcher.Constraint("Horizontal", 0),
    Sketcher.Constraint("Vertical", 1),
    Sketcher.Constraint("Horizontal", 2),
    Sketcher.Constraint("DistanceX", 0, 2, 0, 1, 10.0),
    Sketcher.Constraint("Radius", 3, 0.375),
    Sketcher.Constraint("DistanceX", 3, 3, -1, 1, 0.5),
    Sketcher.Constraint("DistanceY", 3, 3, -1, 1, 18.5),
])
pocket6 = body.newObject("PartDesign::Pocket", "Pocket005")
pocket6.Profile = sketch13
pocket6.Length = 17

# Sketch on YZ plane
sketch14 = body.newObject("Sketcher::SketchObject", "Sketch013")
sketch14.AttachmentSupport = (doc.getObject("YZ_Plane"), [""])
sketch14.MapMode = "FlatFace"
sketch14.AttachmentOffset = App.Placement(Vector(0, 0, 59.5), App.Rotation())
sketch14.addGeometry([
    Part.LineSegment(Vector(-0.5, -18.125, 0), Vector(-10.5, -18.125, 0)),
    Part.LineSegment(Vector(-10.5, -18.125, 0), Vector(-10.5, -18.875, 0)),
    Part.LineSegment(Vector(-10.5, -18.875, 0), Vector(-0.5, -18.875, 0)),
    Part.ArcOfCircle(Part.Circle(Vector(-0.5, -18.5, 0), Vector(0, 0, 1), 0.375), math.radians(-90), math.radians(90)),
], False)
sketch14.addConstraint([
    Sketcher.Constraint("Coincident", 0, 2, 1, 1),
    Sketcher.Constraint("Coincident", 1, 2, 2, 1),
    Sketcher.Constraint("Tangent", 2, 2, 3, 1),
    Sketcher.Constraint("Tangent", 3, 2, 0, 1),
    Sketcher.Constraint("Horizontal", 0),
    Sketcher.Constraint("Vertical", 1),
    Sketcher.Constraint("Horizontal", 2),
    Sketcher.Constraint("DistanceX", 0, 2, 0, 1, 10.0),
    Sketcher.Constraint("Radius", 3, 0.375),
    Sketcher.Constraint("DistanceX", 3, 3, -1, 1, 0.5),
    Sketcher.Constraint("DistanceY", 3, 3, -1, 1, 18.5),
])
pocket7 = body.newObject("PartDesign::Pocket", "Pocket006")
pocket7.Profile = sketch14
pocket7.Length = 11
pocket7.Reversed = True

# Sketch on YZ plane
sketch15 = body.newObject("Sketcher::SketchObject", "Sketch014")
sketch15.AttachmentSupport = (doc.getObject("YZ_Plane"), [""])
sketch15.MapMode = "FlatFace"
sketch15.AttachmentOffset = App.Placement(Vector(0, 0, 130), App.Rotation())
add_polygon(sketch15, [(-27.4, -35.8), (-30, -35.8), (-30, -44.2), (-27.4, -44.2)])  # lines 0-3
sketch15.addConstraint([
    Sketcher.Constraint("Horizontal", 0),
    Sketcher.Constraint("Vertical", 1),
    Sketcher.Constraint("Horizontal", 2),
    Sketcher.Constraint("Vertical", 3),
    Sketcher.Constraint("DistanceX", 0, 2, 0, 1, 2.6),
    Sketcher.Constraint("DistanceY", 1, 2, 1, 1, 8.4),
    Sketcher.Constraint("DistanceX", 0, 2, -1, 1, 30.0),
    Sketcher.Constraint("DistanceY", 0, 2, -1, 1, 35.8),
])
pocket8 = body.newObject("PartDesign::Pocket", "Pocket007")
pocket8.Profile = sketch15
pocket8.Length = 11
doc.recompute()

fillet4 = body.newObject("PartDesign::Fillet", "Fillet003")
fillet4.Base = (pocket8, edges_at(pocket8, [(129, -27.4, -35.8), (129, -27.4, -44.2)]))
fillet4.Radius = 0.5

doc.recompute()
